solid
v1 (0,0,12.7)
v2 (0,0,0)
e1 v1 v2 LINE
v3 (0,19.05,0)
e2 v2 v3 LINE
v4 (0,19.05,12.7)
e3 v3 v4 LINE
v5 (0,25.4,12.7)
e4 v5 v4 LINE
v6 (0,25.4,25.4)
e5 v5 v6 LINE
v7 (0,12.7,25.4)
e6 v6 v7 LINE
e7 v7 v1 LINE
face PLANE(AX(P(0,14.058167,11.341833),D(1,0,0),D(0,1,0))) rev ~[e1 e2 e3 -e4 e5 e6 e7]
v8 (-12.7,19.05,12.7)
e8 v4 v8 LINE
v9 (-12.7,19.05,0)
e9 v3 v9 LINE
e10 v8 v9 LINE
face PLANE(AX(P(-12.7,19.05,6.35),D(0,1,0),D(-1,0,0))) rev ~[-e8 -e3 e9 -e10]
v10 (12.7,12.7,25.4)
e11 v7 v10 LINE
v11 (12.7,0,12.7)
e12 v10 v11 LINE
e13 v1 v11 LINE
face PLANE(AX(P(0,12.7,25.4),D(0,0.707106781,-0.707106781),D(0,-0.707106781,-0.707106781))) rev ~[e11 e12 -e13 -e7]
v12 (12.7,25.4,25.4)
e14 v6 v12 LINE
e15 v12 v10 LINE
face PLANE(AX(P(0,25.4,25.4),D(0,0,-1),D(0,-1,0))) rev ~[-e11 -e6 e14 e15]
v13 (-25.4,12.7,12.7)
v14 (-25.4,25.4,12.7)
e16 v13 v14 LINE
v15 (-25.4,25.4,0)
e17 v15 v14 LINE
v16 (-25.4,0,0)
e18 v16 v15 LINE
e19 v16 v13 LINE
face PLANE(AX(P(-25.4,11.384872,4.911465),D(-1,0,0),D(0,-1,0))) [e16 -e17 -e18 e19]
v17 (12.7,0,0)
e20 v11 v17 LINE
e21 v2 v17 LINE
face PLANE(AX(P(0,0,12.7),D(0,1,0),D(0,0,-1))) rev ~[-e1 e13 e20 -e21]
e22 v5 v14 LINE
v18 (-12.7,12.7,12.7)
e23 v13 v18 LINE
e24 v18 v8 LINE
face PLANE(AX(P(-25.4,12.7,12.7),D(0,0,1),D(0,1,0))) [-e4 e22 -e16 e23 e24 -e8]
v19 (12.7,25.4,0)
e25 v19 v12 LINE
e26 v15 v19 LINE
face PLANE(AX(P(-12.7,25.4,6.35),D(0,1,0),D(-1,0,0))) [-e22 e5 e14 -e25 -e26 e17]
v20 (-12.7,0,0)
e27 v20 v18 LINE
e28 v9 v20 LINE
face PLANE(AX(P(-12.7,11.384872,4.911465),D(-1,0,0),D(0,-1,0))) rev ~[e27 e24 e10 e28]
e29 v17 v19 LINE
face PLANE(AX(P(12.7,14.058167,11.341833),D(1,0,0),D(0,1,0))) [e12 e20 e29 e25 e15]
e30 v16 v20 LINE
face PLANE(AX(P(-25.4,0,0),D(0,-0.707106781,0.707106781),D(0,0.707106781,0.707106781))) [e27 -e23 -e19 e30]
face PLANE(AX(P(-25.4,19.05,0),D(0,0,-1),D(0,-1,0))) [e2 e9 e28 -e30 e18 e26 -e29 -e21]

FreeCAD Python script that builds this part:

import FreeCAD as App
import Part
import Sketcher

V = App.Vector
Q = App.Units.Quantity


def add_polygon(sketch, points):
    """Adds a closed chain of lines whose ends are joined by coincident constraints."""
    first, n = sketch.GeometryCount, len(points)
    for a, b in zip(points, points[1:] + points[:1]):
        sketch.addGeometry(Part.LineSegment(App.Vector(*a, 0), App.Vector(*b, 0)), False)
    for i in range(n):
        sketch.addConstraint(Sketcher.Constraint("Coincident", first + i, 2, first + (i + 1) % n, 1))

doc = App.newDocument("Part")
params = doc.addObject("Spreadsheet::Sheet", "Params")
for row, (alias, value) in enumerate([
    ("sketch1_width", "1 in"),
    ("sketch1_width2", "0.5 in"),
    ("pad1_length", "0.5 in"),
    ("sketch2_width", "1 in"),
    ("sketch2_height", "0.5 in"),
    ("pad2_length", "0.25 in"),
    ("sketch3_height", "0.5 in"),
    ("sketch3_width", "0.75 in"),
    ("pad3_length", "0.5 in"),
], start=1):
    params.set(f"A{row}", alias)
    params.set(f"B{row}", "=" + value)
    params.setAlias(f"B{row}", alias)

body = doc.addObject("PartDesign::Body", "Body")

sketch1 = body.newObject("Sketcher::SketchObject", "Sketch")
sketch1.AttachmentSupport = (doc.getObject("YZ_Plane"), [""])
sketch1.MapMode = "FlatFace"
add_polygon(sketch1, [(0, 13), (0, 0), (25, 0), (25, 25), (13, 25)])
sketch1.addConstraint(Sketcher.Constraint("Vertical", 0))
sketch1.addConstraint(Sketcher.Constraint("Horizontal", 1))
sketch1.addConstraint(Sketcher.Constraint("Vertical", 2))
sketch1.addConstraint(Sketcher.Constraint("Horizontal", 3))
sketch1.addConstraint(Sketcher.Constraint("Coincident", 0, 2, -1, 1))
sketch1.addConstraint(Sketcher.Constraint("Equal", 3, 0))
sketch1.addConstraint(Sketcher.Constraint("Equal", 1, 2))
sketch1.addConstraint(Sketcher.Constraint("DistanceX", 1, 1, 1, 2, Q("1 in")))
sketch1.addConstraint(Sketcher.Constraint("DistanceX", 3, 2, 3, 1, Q("0.5 in")))
sketch1.setExpression("Constraints[12]", "Params.sketch1_width")
sketch1.setExpression("Constraints[13]", "Params.sketch1_width2")
pad1 = body.newObject("PartDesign::Pad", "Pad")
pad1.Profile = sketch1
pad1.setExpression("Length", "Params.pad1_length")

sketch2 = body.newObject("Sketcher::SketchObject", "Sketch001")
sketch2.AttachmentSupport = (doc.getObject("XZ_Plane"), [""])
sketch2.MapMode = "FlatFace"
sketch2.AttachmentOffset = App.Placement(V(0, 0, -1 * 25.4), App.Rotation())
add_polygon(sketch2, [(0, 13), (0, 0), (-25, 0), (-25, 13)])
sketch2.addConstraint(Sketcher.Constraint("Vertical", 0))
sketch2.addConstraint(Sketcher.Constraint("Horizontal", 1))
sketch2.addConstraint(Sketcher.Constraint("Vertical", 2))
sketch2.addConstraint(Sketcher.Constraint("Horizontal", 3))
sketch2.addConstraint(Sketcher.Constraint("Coincident", 0, 2, -1, 1))
sketch2.addConstraint(Sketcher.Constraint("DistanceX", 1, 2, 1, 1, Q("1 in")))
sketch2.addConstraint(Sketcher.Constraint("DistanceY", 0, 2, 0, 1, Q("0.5 in")))
sketch2.setExpression("Constraints[9]", "Params.sketch2_width")
sketch2.setExpression("Constraints[10]", "Params.sketch2_height")
pad2 = body.newObject("PartDesign::Pad", "Pad001")
pad2.Profile = sketch2
pad2.setExpression("Length", "Params.pad2_length")

sketch3 = body.newObject("Sketcher::SketchObject", "Sketch002")
sketch3.AttachmentSupport = (doc.getObject("YZ_Plane"), [""])
sketch3.MapMode = "FlatFace"
sketch3.AttachmentOffset = App.Placement(V(0, 0, -1 * 25.4), App.Rotation())
add_polygon(sketch3, [(19, 13), (19, 0), (0, 0), (13, 13)])
sketch3.addConstraint(Sketcher.Constraint("Vertical", 0))
sketch3.addConstraint(Sketcher.Constraint("Horizontal", 1))
sketch3.addConstraint(Sketcher.Constraint("Horizontal", 3))
sketch3.addConstraint(Sketcher.Constraint("Coincident", 1, 2, -1, 1))
sketch3.addConstraint(Sketcher.Constraint("DistanceY", 0, 2, 0, 1, Q("0.5 in")))
sketch3.addConstraint(Sketcher.Constraint("Angle", 2, Q("45 deg")))
sketch3.addConstraint(Sketcher.Constraint("DistanceX", 1, 2, 1, 1, Q("0.75 in")))
sketch3.setExpression("Constraints[8]", "Params.sketch3_height")
sketch3.setExpression("Constraints[10]", "Params.sketch3_width")
pad3 = body.newObject("PartDesign::Pad", "Pad002")
pad3.Profile = sketch3
pad3.setExpression("Length", "Params.pad3_length")

doc.recompute()
